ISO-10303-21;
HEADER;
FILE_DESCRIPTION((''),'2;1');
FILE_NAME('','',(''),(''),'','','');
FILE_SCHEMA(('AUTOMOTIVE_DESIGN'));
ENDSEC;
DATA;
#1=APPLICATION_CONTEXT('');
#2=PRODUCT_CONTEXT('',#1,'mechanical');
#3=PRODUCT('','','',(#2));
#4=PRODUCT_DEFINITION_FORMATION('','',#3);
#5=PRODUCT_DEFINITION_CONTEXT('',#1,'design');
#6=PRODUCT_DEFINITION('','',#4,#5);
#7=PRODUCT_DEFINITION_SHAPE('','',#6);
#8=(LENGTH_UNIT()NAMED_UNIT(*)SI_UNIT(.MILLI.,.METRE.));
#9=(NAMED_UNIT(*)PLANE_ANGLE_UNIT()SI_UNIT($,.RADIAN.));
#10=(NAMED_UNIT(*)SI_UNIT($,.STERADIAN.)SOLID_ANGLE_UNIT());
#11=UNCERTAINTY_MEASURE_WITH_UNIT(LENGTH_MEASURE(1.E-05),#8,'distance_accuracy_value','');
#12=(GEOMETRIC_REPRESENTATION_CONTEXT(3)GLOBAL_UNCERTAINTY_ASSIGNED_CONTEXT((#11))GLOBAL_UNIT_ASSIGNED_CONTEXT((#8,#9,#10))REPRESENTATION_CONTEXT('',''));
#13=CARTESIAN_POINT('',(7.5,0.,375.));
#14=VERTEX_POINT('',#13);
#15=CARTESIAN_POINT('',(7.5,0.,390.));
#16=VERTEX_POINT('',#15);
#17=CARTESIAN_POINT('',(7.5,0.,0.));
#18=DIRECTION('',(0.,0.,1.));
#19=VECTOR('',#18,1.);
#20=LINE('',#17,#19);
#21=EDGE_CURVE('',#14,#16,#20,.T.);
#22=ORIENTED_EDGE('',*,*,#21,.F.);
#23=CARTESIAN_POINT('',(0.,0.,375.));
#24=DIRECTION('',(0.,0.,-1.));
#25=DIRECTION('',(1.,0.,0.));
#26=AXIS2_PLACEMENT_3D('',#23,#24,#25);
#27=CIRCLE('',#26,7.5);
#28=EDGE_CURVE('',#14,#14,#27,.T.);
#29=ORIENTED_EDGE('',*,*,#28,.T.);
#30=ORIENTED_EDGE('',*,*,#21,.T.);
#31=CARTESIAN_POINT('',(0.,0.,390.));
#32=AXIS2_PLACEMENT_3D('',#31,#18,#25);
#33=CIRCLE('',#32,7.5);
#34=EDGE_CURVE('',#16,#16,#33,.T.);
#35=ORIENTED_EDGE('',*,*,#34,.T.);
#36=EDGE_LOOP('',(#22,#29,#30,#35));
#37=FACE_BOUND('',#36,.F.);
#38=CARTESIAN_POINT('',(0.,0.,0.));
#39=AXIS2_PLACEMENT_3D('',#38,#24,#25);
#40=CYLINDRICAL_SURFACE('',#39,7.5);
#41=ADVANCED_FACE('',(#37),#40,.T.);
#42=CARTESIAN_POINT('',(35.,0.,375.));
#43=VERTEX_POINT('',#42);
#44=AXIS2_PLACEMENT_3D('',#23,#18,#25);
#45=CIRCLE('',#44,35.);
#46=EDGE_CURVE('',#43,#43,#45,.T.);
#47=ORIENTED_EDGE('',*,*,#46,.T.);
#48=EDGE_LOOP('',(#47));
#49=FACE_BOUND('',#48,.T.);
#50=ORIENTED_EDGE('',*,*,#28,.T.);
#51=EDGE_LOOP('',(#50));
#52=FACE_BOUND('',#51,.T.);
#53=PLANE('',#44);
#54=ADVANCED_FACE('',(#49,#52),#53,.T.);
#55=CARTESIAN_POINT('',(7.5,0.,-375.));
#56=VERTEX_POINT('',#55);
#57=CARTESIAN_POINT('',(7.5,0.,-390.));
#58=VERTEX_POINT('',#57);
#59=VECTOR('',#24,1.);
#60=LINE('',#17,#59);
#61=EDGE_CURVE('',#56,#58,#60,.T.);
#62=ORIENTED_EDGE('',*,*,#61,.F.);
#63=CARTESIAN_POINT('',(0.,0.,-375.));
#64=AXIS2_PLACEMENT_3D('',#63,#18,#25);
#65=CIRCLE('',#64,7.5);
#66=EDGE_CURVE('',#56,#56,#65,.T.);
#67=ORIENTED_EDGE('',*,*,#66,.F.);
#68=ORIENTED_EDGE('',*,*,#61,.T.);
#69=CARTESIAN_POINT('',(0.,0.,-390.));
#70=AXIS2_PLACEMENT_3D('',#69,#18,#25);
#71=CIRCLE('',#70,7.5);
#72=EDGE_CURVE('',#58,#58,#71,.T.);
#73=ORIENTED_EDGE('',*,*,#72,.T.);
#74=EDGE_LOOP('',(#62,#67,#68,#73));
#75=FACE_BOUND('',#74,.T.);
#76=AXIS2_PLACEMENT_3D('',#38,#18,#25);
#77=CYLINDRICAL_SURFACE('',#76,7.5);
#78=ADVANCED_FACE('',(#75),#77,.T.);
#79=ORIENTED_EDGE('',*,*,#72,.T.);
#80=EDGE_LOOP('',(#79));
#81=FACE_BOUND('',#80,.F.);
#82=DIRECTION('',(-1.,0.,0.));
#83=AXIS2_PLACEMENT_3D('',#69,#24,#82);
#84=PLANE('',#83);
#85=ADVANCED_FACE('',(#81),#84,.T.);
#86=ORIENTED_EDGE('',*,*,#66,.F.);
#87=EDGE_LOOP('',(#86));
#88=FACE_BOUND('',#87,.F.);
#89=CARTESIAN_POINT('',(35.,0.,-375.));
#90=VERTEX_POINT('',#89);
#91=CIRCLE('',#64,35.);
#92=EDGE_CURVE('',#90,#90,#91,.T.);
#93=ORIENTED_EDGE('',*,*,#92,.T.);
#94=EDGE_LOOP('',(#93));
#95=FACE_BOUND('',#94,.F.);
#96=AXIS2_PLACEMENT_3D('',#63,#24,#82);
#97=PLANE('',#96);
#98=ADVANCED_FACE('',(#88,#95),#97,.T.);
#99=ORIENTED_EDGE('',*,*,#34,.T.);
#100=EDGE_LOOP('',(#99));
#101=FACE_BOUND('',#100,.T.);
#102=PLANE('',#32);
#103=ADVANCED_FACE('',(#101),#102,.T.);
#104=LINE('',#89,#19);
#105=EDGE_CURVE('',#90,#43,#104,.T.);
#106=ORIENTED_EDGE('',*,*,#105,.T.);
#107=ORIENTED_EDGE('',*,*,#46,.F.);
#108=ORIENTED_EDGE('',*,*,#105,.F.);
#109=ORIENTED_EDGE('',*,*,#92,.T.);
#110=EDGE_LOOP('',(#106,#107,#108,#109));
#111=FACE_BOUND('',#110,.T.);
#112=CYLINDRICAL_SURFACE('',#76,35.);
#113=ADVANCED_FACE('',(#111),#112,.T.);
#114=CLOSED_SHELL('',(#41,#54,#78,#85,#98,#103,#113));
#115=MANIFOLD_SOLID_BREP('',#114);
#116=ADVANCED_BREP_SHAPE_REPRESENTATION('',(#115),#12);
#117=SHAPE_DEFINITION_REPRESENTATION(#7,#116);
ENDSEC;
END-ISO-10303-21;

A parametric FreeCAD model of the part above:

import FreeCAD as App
import Part
import Sketcher
from FreeCAD import Vector
Q = App.Units.Quantity

doc = App.newDocument("Part")
body = doc.addObject("PartDesign::Body", "Body")

sketch1 = body.newObject("Sketcher::SketchObject", "Sketch")
sketch1.AttachmentSupport = (doc.getObject("XY_Plane"), [""])
sketch1.MapMode = "FlatFace"
sketch1.addGeometry(Part.Circle(Vector(0, 0, 0), Vector(0, 0, 1), 35), False)
sketch1.addConstraint(Sketcher.Constraint("Coincident", 0, 3, -1, 1))
sketch1.addConstraint(Sketcher.Constraint("Diameter", 0, Q("70 mm")))
pad1 = body.newObject("PartDesign::Pad", "Pad")
pad1.Profile = sketch1
pad1.Length = 375

sketch2 = body.newObject("Sketcher::SketchObject", "Sketch001")
sketch2.AttachmentSupport = (doc.getObject("XY_Plane"), [""])
sketch2.MapMode = "FlatFace"
sketch2.addGeometry(Part.Circle(Vector(0, 0, 0), Vector(0, 0, 1), 8), False)
sketch2.addConstraint(Sketcher.Constraint("Coincident", 0, 3, -1, 1))
sketch2.addConstraint(Sketcher.Constraint("Diameter", 0, Q("15 mm")))
pad2 = body.newObject("PartDesign::Pad", "Pad001")
pad2.Profile = sketch2
pad2.Length = 390
doc.recompute()

mirrored = body.newObject("PartDesign::Mirrored", "Mirrored")
mirrored.Originals = [pad1, pad2]
mirrored.MirrorPlane = (doc.getObject("XY_Plane"), [""])
body.Tip = mirrored

doc.recompute()
